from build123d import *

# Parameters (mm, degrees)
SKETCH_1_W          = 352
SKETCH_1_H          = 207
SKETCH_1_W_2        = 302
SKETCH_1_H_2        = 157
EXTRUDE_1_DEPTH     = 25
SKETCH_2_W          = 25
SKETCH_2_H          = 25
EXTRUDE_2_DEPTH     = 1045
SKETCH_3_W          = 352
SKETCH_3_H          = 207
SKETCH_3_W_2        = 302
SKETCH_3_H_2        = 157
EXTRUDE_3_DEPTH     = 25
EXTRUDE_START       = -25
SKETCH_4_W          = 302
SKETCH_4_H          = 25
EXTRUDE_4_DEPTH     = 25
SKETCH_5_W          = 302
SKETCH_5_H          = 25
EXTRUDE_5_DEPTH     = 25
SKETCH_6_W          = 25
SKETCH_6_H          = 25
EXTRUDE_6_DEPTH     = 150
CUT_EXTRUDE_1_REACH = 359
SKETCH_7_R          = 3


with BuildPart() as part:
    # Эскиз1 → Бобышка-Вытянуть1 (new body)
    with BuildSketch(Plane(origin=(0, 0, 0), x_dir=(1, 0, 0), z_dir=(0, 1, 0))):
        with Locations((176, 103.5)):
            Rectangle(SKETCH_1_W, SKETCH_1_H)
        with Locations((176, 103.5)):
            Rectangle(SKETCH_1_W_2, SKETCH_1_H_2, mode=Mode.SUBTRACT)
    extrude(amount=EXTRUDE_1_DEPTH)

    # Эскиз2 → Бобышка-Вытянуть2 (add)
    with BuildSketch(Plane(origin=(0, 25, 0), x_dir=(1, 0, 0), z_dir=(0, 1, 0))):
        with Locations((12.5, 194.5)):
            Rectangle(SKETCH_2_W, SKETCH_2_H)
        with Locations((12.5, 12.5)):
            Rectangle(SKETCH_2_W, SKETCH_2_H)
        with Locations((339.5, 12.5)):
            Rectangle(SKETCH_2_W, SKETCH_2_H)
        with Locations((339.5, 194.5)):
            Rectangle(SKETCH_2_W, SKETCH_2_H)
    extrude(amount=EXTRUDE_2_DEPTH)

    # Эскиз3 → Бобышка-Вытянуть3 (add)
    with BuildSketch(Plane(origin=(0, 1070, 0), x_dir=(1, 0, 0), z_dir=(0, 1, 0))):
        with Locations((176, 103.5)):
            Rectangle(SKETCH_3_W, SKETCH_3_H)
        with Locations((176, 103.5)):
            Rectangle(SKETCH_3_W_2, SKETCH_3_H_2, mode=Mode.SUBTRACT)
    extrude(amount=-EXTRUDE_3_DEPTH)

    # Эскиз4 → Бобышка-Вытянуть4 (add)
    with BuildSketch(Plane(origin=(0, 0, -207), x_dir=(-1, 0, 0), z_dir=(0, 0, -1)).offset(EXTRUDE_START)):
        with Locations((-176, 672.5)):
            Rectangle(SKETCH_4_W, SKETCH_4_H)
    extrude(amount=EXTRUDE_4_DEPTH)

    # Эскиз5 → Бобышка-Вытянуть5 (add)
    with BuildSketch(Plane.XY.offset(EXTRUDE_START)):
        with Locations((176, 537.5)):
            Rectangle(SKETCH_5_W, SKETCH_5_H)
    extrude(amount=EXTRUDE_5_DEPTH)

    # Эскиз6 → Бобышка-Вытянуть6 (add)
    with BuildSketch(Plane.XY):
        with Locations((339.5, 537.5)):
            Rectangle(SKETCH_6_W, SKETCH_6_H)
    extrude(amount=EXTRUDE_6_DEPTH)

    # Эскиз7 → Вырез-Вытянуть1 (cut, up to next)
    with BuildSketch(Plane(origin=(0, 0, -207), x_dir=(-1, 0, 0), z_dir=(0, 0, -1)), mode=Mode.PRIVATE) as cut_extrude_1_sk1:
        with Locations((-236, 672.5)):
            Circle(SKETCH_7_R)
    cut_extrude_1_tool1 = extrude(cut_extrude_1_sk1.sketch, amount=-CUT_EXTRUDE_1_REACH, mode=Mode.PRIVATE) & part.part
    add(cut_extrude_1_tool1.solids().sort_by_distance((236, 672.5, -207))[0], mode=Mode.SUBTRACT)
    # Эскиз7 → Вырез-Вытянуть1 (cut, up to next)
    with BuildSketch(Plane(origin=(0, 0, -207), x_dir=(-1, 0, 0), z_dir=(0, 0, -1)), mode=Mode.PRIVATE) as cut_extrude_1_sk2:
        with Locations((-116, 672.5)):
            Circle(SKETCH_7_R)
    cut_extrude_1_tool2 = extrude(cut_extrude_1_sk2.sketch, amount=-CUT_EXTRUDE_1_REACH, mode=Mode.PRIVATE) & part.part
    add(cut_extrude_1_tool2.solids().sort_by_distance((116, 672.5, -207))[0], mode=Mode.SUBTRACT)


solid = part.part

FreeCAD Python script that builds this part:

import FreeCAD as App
import Part
import Sketcher

V = App.Vector


def add_polygon(sketch, points):
    """Adds a closed chain of lines whose ends are joined by coincident constraints."""
    first, n = sketch.GeometryCount, len(points)
    for a, b in zip(points, points[1:] + points[:1]):
        sketch.addGeometry(Part.LineSegment(App.Vector(*a, 0), App.Vector(*b, 0)), False)
    for i in range(n):
        sketch.addConstraint(Sketcher.Constraint("Coincident", first + i, 2, first + (i + 1) % n, 1))

doc = App.newDocument("Part")
body = doc.addObject("PartDesign::Body", "Body")

# Sketch on XZ plane
sketch1 = body.newObject("Sketcher::SketchObject", "Sketch")
sketch1.AttachmentSupport = (doc.getObject("XZ_Plane"), [""])
sketch1.MapMode = "FlatFace"
add_polygon(sketch1, [(0, -207), (0, 0), (352, 0), (352, -207)])  # lines 0-3
add_polygon(sketch1, [(327, -25), (25, -25), (25, -182), (327, -182)])  # lines 4-7
sketch1.addConstraint(Sketcher.Constraint("Vertical", 0))
sketch1.addConstraint(Sketcher.Constraint("Horizontal", 1))
sketch1.addConstraint(Sketcher.Constraint("Vertical", 2))
sketch1.addConstraint(Sketcher.Constraint("Horizontal", 3))
sketch1.addConstraint(Sketcher.Constraint("Horizontal", 4))
sketch1.addConstraint(Sketcher.Constraint("Vertical", 5))
sketch1.addConstraint(Sketcher.Constraint("Horizontal", 6))
sketch1.addConstraint(Sketcher.Constraint("Vertical", 7))
sketch1.addConstraint(Sketcher.Constraint("Coincident", 0, 2, -1, 1))
sketch1.addConstraint(Sketcher.Constraint("DistanceX", 1, 1, 1, 2, 352.0))
sketch1.addConstraint(Sketcher.Constraint("DistanceX", 4, 2, 4, 1, 302.0))
sketch1.addConstraint(Sketcher.Constraint("DistanceY", 0, 1, 0, 2, 207.0))
sketch1.addConstraint(Sketcher.Constraint("DistanceY", 5, 2, 5, 1, 157.0))
sketch1.addConstraint(Sketcher.Constraint("DistanceX", -1, 1, 4, 2, 25.0))
sketch1.addConstraint(Sketcher.Constraint("DistanceY", 4, 2, -1, 1, 25.0))
pad1 = body.newObject("PartDesign::Pad", "Pad")
pad1.Profile = sketch1
pad1.Length = 25
pad1.Reversed = True

# Sketch on XZ plane
sketch2 = body.newObject("Sketcher::SketchObject", "Sketch001")
sketch2.AttachmentSupport = (doc.getObject("XZ_Plane"), [""])
sketch2.MapMode = "FlatFace"
sketch2.AttachmentOffset = App.Placement(V(0, 0, -25), App.Rotation())
add_polygon(sketch2, [(0, -207), (0, -182), (25, -182), (25, -207)])  # lines 0-3
add_polygon(sketch2, [(0, -25), (0, 0), (25, 0), (25, -25)])  # lines 4-7
add_polygon(sketch2, [(327, -25), (327, 0), (352, 0), (352, -25)])  # lines 8-11
add_polygon(sketch2, [(327, -207), (327, -182), (352, -182), (352, -207)])  # lines 12-15
sketch2.addConstraint(Sketcher.Constraint("Vertical", 0))
sketch2.addConstraint(Sketcher.Constraint("Horizontal", 1))
sketch2.addConstraint(Sketcher.Constraint("Vertical", 2))
sketch2.addConstraint(Sketcher.Constraint("Horizontal", 3))
sketch2.addConstraint(Sketcher.Constraint("Vertical", 4))
sketch2.addConstraint(Sketcher.Constraint("Horizontal", 5))
sketch2.addConstraint(Sketcher.Constraint("Vertical", 6))
sketch2.addConstraint(Sketcher.Constraint("Horizontal", 7))
sketch2.addConstraint(Sketcher.Constraint("Vertical", 8))
sketch2.addConstraint(Sketcher.Constraint("Horizontal", 9))
sketch2.addConstraint(Sketcher.Constraint("Vertical", 10))
sketch2.addConstraint(Sketcher.Constraint("Horizontal", 11))
sketch2.addConstraint(Sketcher.Constraint("Vertical", 12))
sketch2.addConstraint(Sketcher.Constraint("Horizontal", 13))
sketch2.addConstraint(Sketcher.Constraint("Vertical", 14))
sketch2.addConstraint(Sketcher.Constraint("Horizontal", 15))
sketch2.addConstraint(Sketcher.Constraint("Coincident", 4, 2, -1, 1))
sketch2.addConstraint(Sketcher.Constraint("PointOnObject", 0, 2, -2))
sketch2.addConstraint(Sketcher.Constraint("PointOnObject", 8, 2, -1))
sketch2.addConstraint(Sketcher.Constraint("Horizontal", 7, 2, 10, 2))
sketch2.addConstraint(Sketcher.Constraint("Horizontal", 1, 2, 12, 2))
sketch2.addConstraint(Sketcher.Constraint("Horizontal", 3, 2, 14, 2))
sketch2.addConstraint(Sketcher.Constraint("Vertical", 2, 2, 5, 2))
sketch2.addConstraint(Sketcher.Constraint("Vertical", 11, 2, 12, 2))
sketch2.addConstraint(Sketcher.Constraint("Vertical", 10, 2, 13, 2))
sketch2.addConstraint(Sketcher.Constraint("Equal", 7, 9))
sketch2.addConstraint(Sketcher.Constraint("Equal", 15, 0))
sketch2.addConstraint(Sketcher.Constraint("Equal", 2, 4))
sketch2.addConstraint(Sketcher.Constraint("DistanceX", 1, 1, 1, 2, 25.0))
sketch2.addConstraint(Sketcher.Constraint("DistanceY", 0, 2, -1, 1, 182.0))
sketch2.addConstraint(Sketcher.Constraint("DistanceX", -1, 1, 8, 2, 327.0))
pad2 = body.newObject("PartDesign::Pad", "Pad001")
pad2.Profile = sketch2
pad2.Length = 1045
pad2.Reversed = True

# Sketch on XZ plane
sketch3 = body.newObject("Sketcher::SketchObject", "Sketch002")
sketch3.AttachmentSupport = (doc.getObject("XZ_Plane"), [""])
sketch3.MapMode = "FlatFace"
sketch3.AttachmentOffset = App.Placement(V(0, 0, -1070), App.Rotation())
add_polygon(sketch3, [(0, -207), (0, 0), (352, 0), (352, -207)])  # lines 0-3
add_polygon(sketch3, [(327, -25), (25, -25), (25, -182), (327, -182)])  # lines 4-7
sketch3.addConstraint(Sketcher.Constraint("Vertical", 0))
sketch3.addConstraint(Sketcher.Constraint("Horizontal", 1))
sketch3.addConstraint(Sketcher.Constraint("Vertical", 2))
sketch3.addConstraint(Sketcher.Constraint("Horizontal", 3))
sketch3.addConstraint(Sketcher.Constraint("Horizontal", 4))
sketch3.addConstraint(Sketcher.Constraint("Vertical", 5))
sketch3.addConstraint(Sketcher.Constraint("Horizontal", 6))
sketch3.addConstraint(Sketcher.Constraint("Vertical", 7))
sketch3.addConstraint(Sketcher.Constraint("Coincident", 0, 2, -1, 1))
sketch3.addConstraint(Sketcher.Constraint("DistanceX", 1, 1, 1, 2, 352.0))
sketch3.addConstraint(Sketcher.Constraint("DistanceX", 4, 2, 4, 1, 302.0))
sketch3.addConstraint(Sketcher.Constraint("DistanceY", 0, 1, 0, 2, 207.0))
sketch3.addConstraint(Sketcher.Constraint("DistanceY", 5, 2, 5, 1, 157.0))
sketch3.addConstraint(Sketcher.Constraint("DistanceX", -1, 1, 4, 2, 25.0))
sketch3.addConstraint(Sketcher.Constraint("DistanceY", 4, 2, -1, 1, 25.0))
pad3 = body.newObject("PartDesign::Pad", "Pad002")
pad3.Profile = sketch3
pad3.Length = 25

# Sketch on XY plane
sketch4 = body.newObject("Sketcher::SketchObject", "Sketch003")
sketch4.AttachmentSupport = (doc.getObject("XY_Plane"), [""])
sketch4.MapMode = "FlatFace"
sketch4.AttachmentOffset = App.Placement(V(0, 0, -182), App.Rotation())
add_polygon(sketch4, [(327, 685), (327, 660), (25, 660), (25, 685)])  # lines 0-3
sketch4.addConstraint(Sketcher.Constraint("Vertical", 0))
sketch4.addConstraint(Sketcher.Constraint("Horizontal", 1))
sketch4.addConstraint(Sketcher.Constraint("Vertical", 2))
sketch4.addConstraint(Sketcher.Constraint("Horizontal", 3))
sketch4.addConstraint(Sketcher.Constraint("DistanceX", 1, 2, 1, 1, 302.0))
sketch4.addConstraint(Sketcher.Constraint("DistanceY", 0, 2, 0, 1, 25.0))
sketch4.addConstraint(Sketcher.Constraint("DistanceX", -1, 1, 0, 2, 327.0))
sketch4.addConstraint(Sketcher.Constraint("DistanceY", -1, 1, 0, 2, 660.0))
pad4 = body.newObject("PartDesign::Pad", "Pad003")
pad4.Profile = sketch4
pad4.Length = 25
pad4.Reversed = True

# Sketch on XY plane
sketch5 = body.newObject("Sketcher::SketchObject", "Sketch004")
sketch5.AttachmentSupport = (doc.getObject("XY_Plane"), [""])
sketch5.MapMode = "FlatFace"
sketch5.AttachmentOffset = App.Placement(V(0, 0, -25), App.Rotation())
add_polygon(sketch5, [(25, 550), (25, 525), (327, 525), (327, 550)])  # lines 0-3
sketch5.addConstraint(Sketcher.Constraint("Vertical", 0))
sketch5.addConstraint(Sketcher.Constraint("Horizontal", 1))
sketch5.addConstraint(Sketcher.Constraint("Vertical", 2))
sketch5.addConstraint(Sketcher.Constraint("Horizontal", 3))
sketch5.addConstraint(Sketcher.Constraint("DistanceX", 1, 1, 1, 2, 302.0))
sketch5.addConstraint(Sketcher.Constraint("DistanceY", 0, 2, 0, 1, 25.0))
sketch5.addConstraint(Sketcher.Constraint("DistanceX", -1, 1, 0, 2, 25.0))
sketch5.addConstraint(Sketcher.Constraint("DistanceY", -1, 1, 0, 2, 525.0))
pad5 = body.newObject("PartDesign::Pad", "Pad004")
pad5.Profile = sketch5
pad5.Length = 25

# Sketch on XY plane
sketch6 = body.newObject("Sketcher::SketchObject", "Sketch005")
sketch6.AttachmentSupport = (doc.getObject("XY_Plane"), [""])
sketch6.MapMode = "FlatFace"
add_polygon(sketch6, [(327, 550), (327, 525), (352, 525), (352, 550)])  # lines 0-3
sketch6.addConstraint(Sketcher.Constraint("Vertical", 0))
sketch6.addConstraint(Sketcher.Constraint("Horizontal", 1))
sketch6.addConstraint(Sketcher.Constraint("Vertical", 2))
sketch6.addConstraint(Sketcher.Constraint("Horizontal", 3))
sketch6.addConstraint(Sketcher.Constraint("Equal", 3, 0))
sketch6.addConstraint(Sketcher.Constraint("DistanceX", 1, 1, 1, 2, 25.0))
sketch6.addConstraint(Sketcher.Constraint("DistanceX", -1, 1, 0, 2, 327.0))
sketch6.addConstraint(Sketcher.Constraint("DistanceY", -1, 1, 0, 2, 525.0))
pad6 = body.newObject("PartDesign::Pad", "Pad005")
pad6.Profile = sketch6
pad6.Length = 150

# Sketch on XY plane
sketch7 = body.newObject("Sketcher::SketchObject", "Sketch006")
sketch7.AttachmentSupport = (doc.getObject("XY_Plane"), [""])
sketch7.MapMode = "FlatFace"
sketch7.AttachmentOffset = App.Placement(V(0, 0, -207), App.Rotation())
sketch7.addGeometry(Part.Circle(V(236, 672.5, 0), V(0, 0, 1), 3), False)
sketch7.addConstraint(Sketcher.Constraint("Diameter", 0, 6.0))
sketch7.addConstraint(Sketcher.Constraint("DistanceX", -1, 1, 0, 3, 236.0))
sketch7.addConstraint(Sketcher.Constraint("DistanceY", -1, 1, 0, 3, 672.5))
pocket1 = body.newObject("PartDesign::Pocket", "Pocket")
pocket1.Profile = sketch7
pocket1.Type = "UpToFirst"
pocket1.Reversed = True

# Sketch on XY plane
sketch8 = body.newObject("Sketcher::SketchObject", "Sketch007")
sketch8.AttachmentSupport = (doc.getObject("XY_Plane"), [""])
sketch8.MapMode = "FlatFace"
sketch8.AttachmentOffset = App.Placement(V(0, 0, -207), App.Rotation())
sketch8.addGeometry(Part.Circle(V(116, 672.5, 0), V(0, 0, 1), 3), False)
sketch8.addConstraint(Sketcher.Constraint("Diameter", 0, 6.0))
sketch8.addConstraint(Sketcher.Constraint("DistanceX", -1, 1, 0, 3, 116.0))
sketch8.addConstraint(Sketcher.Constraint("DistanceY", -1, 1, 0, 3, 672.5))
pocket2 = body.newObject("PartDesign::Pocket", "Pocket001")
pocket2.Profile = sketch8
pocket2.Type = "UpToFirst"
pocket2.Reversed = True

doc.recompute()
